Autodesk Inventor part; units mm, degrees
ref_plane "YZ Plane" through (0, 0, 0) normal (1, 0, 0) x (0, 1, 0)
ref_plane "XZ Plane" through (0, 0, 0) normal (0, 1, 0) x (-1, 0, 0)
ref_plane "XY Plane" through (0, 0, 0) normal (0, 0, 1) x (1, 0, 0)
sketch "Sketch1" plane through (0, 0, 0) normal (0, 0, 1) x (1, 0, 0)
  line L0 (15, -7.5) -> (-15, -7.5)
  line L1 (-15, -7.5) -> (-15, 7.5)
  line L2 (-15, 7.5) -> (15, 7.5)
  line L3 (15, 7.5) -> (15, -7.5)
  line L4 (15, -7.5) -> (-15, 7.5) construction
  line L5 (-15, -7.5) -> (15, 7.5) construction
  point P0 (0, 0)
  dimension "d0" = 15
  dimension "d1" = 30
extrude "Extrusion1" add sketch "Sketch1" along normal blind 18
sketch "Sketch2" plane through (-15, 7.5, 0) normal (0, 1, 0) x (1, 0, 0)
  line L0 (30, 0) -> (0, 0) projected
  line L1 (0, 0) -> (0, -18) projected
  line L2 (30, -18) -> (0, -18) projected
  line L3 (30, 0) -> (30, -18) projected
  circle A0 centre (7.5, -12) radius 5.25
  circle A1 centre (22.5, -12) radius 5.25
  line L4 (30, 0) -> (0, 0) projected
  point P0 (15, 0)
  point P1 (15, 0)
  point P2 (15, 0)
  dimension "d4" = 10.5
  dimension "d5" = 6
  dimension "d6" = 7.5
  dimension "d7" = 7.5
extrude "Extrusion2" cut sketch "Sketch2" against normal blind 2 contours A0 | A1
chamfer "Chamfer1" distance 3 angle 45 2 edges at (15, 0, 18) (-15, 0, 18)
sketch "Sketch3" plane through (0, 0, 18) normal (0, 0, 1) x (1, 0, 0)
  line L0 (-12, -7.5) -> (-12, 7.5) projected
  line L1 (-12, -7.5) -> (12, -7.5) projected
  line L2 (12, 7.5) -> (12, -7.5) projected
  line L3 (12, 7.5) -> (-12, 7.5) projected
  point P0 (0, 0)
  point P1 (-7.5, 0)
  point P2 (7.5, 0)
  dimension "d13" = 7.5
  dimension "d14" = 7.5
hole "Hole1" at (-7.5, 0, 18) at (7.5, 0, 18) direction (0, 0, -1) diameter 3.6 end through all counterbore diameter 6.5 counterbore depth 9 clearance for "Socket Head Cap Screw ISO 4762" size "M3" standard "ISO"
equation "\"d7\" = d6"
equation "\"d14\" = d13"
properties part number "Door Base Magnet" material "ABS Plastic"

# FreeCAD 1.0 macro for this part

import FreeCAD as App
import Part
import Sketcher


def edges_at(feature, points):
    """Names of the edges that pass closest to the given points."""
    edges = feature.Shape.Edges
    near = lambda p: min(range(len(edges)), key=lambda i: edges[i].distToShape(Part.Vertex(*p))[0])
    return sorted({f"Edge{near(p) + 1}" for p in points})


def add_polygon(sketch, points):
    """Adds a closed chain of lines whose ends are joined by coincident constraints."""
    first, n = sketch.GeometryCount, len(points)
    for a, b in zip(points, points[1:] + points[:1]):
        sketch.addGeometry(Part.LineSegment(App.Vector(*a, 0), App.Vector(*b, 0)), False)
    for i in range(n):
        sketch.addConstraint(Sketcher.Constraint("Coincident", first + i, 2, first + (i + 1) % n, 1))

doc = App.newDocument("Part")
body = doc.addObject("PartDesign::Body", "Body")

# Sketch on XY plane
sketch1 = body.newObject("Sketcher::SketchObject", "Sketch")
sketch1.AttachmentSupport = (doc.getObject("XY_Plane"), [""])
sketch1.MapMode = "FlatFace"
add_polygon(sketch1, [(-15, -7.5), (15, -7.5), (15, 7.5), (-15, 7.5)])  # lines 0-3
sketch1.addConstraint([
    Sketcher.Constraint("Horizontal", 0),
    Sketcher.Constraint("Vertical", 1),
    Sketcher.Constraint("Horizontal", 2),
    Sketcher.Constraint("Vertical", 3),
    Sketcher.Constraint("Symmetric", 0, 2, 2, 2, -1, 1),
    Sketcher.Constraint("DistanceX", 0, 1, 0, 2, 30.0),
    Sketcher.Constraint("DistanceY", 1, 1, 1, 2, 15.0),
])
pad1 = body.newObject("PartDesign::Pad", "Pad")
pad1.Profile = sketch1
pad1.Length = 18

# Sketch on XZ plane
sketch2 = body.newObject("Sketcher::SketchObject", "Sketch001")
sketch2.AttachmentSupport = (doc.getObject("XZ_Plane"), [""])
sketch2.MapMode = "FlatFace"
sketch2.AttachmentOffset = App.Placement(App.Vector(0, 0, -7.5), App.Rotation())
sketch2.addGeometry([
    Part.Circle(App.Vector(-7.5, 12, 0), App.Vector(0, 0, 1), 5.25),
    Part.Circle(App.Vector(7.5, 12, 0), App.Vector(0, 0, 1), 5.25),
], False)
sketch2.addConstraint([
    Sketcher.Constraint("Equal", 0, 1),
    Sketcher.Constraint("Symmetric", 0, 3, 1, 3, -2),
    Sketcher.Constraint("Diameter", 0, 10.5),
    Sketcher.Constraint("DistanceX", 0, 3, -1, 1, 7.5),
    Sketcher.Constraint("DistanceY", -1, 1, 0, 3, 12.0),
])
pocket1 = body.newObject("PartDesign::Pocket", "Pocket")
pocket1.Profile = sketch2
pocket1.Length = 2
pocket1.Reversed = True
doc.recompute()

chamfer = body.newObject("PartDesign::Chamfer", "Chamfer")
chamfer.Base = (pocket1, edges_at(pocket1, [(15, 0, 18), (-15, 0, 18)]))
chamfer.Size = 3

# Sketch on XY plane
sketch3 = body.newObject("Sketcher::SketchObject", "Sketch002")
sketch3.AttachmentSupport = (doc.getObject("XY_Plane"), [""])
sketch3.MapMode = "FlatFace"
sketch3.AttachmentOffset = App.Placement(App.Vector(0, 0, 18), App.Rotation())
sketch3.addGeometry([
    Part.Circle(App.Vector(-7.5, 0, 0), App.Vector(0, 0, 1), 1.8),
    Part.Circle(App.Vector(7.5, 0, 0), App.Vector(0, 0, 1), 1.8),
], False)
sketch3.addConstraint([
    Sketcher.Constraint("Equal", 0, 1),
    Sketcher.Constraint("Symmetric", 0, 3, 1, 3, -1, 1),
    Sketcher.Constraint("PointOnObject", 0, 3, -1),
    Sketcher.Constraint("Diameter", 0, 3.6),
    Sketcher.Constraint("DistanceX", 0, 3, 1, 3, 15.0),
])
doc.recompute()
hole = body.newObject("PartDesign::Hole", "Hole")
hole.Profile = sketch3
hole.ThreadType = "None"
hole.Diameter = 3.6
hole.DepthType = "ThroughAll"
hole.HoleCutType = "Counterbore"
hole.HoleCutDiameter = 6.5
hole.HoleCutDepth = 9

doc.recompute()
